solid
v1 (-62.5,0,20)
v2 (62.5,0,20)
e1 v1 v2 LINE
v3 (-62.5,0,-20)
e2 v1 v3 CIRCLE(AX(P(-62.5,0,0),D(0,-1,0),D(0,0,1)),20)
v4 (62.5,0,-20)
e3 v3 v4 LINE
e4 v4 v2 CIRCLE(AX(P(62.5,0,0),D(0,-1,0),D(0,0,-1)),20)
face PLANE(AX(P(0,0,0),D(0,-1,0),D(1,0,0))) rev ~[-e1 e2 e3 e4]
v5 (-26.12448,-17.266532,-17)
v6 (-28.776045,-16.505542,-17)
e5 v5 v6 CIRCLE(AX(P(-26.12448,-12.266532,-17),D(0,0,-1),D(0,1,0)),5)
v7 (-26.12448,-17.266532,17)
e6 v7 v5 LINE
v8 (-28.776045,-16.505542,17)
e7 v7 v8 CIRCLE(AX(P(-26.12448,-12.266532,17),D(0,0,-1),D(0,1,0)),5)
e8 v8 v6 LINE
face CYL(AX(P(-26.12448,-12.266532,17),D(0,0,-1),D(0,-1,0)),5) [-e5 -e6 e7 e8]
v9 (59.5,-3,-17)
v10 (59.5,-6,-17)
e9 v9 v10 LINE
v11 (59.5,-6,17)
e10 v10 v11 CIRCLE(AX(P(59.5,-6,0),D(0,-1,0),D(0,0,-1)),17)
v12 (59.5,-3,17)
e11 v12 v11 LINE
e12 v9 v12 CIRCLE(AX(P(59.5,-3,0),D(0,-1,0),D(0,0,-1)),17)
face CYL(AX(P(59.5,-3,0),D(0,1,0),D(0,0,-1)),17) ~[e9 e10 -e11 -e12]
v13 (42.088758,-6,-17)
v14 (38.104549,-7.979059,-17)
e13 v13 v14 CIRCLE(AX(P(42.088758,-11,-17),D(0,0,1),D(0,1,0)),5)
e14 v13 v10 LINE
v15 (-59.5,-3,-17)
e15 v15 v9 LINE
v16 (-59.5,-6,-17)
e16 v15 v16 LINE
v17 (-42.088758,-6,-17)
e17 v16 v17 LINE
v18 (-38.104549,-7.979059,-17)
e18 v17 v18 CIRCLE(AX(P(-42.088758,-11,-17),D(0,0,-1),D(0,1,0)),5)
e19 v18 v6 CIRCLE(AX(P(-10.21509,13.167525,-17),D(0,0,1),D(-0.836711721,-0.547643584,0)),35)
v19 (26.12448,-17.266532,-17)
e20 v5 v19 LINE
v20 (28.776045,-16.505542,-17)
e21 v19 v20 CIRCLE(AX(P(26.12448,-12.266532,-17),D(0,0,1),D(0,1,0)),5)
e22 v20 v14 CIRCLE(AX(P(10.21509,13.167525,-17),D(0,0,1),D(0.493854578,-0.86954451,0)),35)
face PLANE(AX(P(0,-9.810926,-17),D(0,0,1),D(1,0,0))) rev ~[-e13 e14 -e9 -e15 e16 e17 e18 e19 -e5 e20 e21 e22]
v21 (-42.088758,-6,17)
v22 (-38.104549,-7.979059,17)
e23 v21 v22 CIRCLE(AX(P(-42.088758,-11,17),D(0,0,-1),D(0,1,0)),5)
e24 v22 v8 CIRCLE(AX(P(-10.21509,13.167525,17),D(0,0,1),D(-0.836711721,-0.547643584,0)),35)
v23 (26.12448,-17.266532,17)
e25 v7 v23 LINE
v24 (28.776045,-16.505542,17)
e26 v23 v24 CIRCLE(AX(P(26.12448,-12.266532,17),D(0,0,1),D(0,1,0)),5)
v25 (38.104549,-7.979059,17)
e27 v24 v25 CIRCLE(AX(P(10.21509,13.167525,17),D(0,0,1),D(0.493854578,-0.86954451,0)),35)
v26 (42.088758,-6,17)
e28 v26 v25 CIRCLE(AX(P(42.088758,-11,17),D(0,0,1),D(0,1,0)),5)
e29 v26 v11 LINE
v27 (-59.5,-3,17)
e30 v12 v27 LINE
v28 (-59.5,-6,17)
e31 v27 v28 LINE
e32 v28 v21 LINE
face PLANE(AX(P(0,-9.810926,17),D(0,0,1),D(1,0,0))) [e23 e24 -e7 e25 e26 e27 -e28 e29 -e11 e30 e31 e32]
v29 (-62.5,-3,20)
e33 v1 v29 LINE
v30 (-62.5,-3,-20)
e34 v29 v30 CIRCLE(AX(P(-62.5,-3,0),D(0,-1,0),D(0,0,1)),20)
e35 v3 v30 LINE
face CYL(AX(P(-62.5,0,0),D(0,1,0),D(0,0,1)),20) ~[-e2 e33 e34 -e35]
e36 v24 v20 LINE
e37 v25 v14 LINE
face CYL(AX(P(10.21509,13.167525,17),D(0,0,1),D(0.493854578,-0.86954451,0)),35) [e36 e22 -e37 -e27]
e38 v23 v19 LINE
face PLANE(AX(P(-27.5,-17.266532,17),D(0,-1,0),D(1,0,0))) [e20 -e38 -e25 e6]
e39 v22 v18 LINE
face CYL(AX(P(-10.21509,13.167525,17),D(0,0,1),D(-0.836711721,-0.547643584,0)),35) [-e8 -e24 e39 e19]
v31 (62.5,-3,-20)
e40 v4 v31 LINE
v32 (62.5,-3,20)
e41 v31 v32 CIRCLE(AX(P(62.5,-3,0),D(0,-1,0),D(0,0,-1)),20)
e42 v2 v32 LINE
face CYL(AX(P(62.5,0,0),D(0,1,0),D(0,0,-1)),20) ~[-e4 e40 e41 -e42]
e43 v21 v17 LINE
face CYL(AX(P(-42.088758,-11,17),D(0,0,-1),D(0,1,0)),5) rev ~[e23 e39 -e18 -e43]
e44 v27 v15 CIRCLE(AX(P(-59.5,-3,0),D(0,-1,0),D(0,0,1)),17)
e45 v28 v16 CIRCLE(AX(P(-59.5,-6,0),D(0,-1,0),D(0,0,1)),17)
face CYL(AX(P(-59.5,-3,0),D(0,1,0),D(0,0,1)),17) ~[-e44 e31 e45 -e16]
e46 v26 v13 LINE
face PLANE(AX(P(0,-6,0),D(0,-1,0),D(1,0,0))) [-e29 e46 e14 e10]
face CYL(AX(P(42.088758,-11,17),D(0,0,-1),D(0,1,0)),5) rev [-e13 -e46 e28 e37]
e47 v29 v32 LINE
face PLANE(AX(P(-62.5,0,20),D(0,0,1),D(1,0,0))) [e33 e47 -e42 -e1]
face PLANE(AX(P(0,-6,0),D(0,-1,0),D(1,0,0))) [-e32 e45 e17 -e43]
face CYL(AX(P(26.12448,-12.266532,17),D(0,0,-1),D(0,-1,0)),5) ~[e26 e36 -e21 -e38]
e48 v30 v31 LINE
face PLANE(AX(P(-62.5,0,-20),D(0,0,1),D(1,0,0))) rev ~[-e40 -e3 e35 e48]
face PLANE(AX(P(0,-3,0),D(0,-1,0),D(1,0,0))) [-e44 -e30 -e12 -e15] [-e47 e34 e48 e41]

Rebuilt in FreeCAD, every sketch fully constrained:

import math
import FreeCAD as App
import Part
import Sketcher
from FreeCAD import Vector


def edges_at(feature, points):
    """Names of the edges that pass closest to the given points."""
    edges = feature.Shape.Edges
    near = lambda p: min(range(len(edges)), key=lambda i: edges[i].distToShape(Part.Vertex(*p))[0])
    return sorted({f"Edge{near(p) + 1}" for p in points})

doc = App.newDocument("Part")
body = doc.addObject("PartDesign::Body", "Body")

# Sketch on XZ plane
sketch1 = doc.addObject("Sketcher::SketchObject", "Sketch")
body.addObject(sketch1)
sketch1.AttachmentSupport = (doc.XZ_Plane, [""])
sketch1.MapMode = "FlatFace"
sketch1.addGeometry(Part.LineSegment(Vector(-62, -20, 0), Vector(62, -20, 0)), False)
sketch1.addGeometry(Part.ArcOfCircle(Part.Circle(Vector(62, 0, 0), Vector(0, 0, 1), 20), math.radians(-90), math.radians(90)), False)
sketch1.addGeometry(Part.LineSegment(Vector(62, 20, 0), Vector(-62, 20, 0)), False)
sketch1.addGeometry(Part.ArcOfCircle(Part.Circle(Vector(-62, 0, 0), Vector(0, 0, 1), 20), math.radians(90), math.radians(270)), False)
sketch1.addConstraint(Sketcher.Constraint("Tangent", 0, 2, 1, 1))
sketch1.addConstraint(Sketcher.Constraint("Tangent", 1, 2, 2, 1))
sketch1.addConstraint(Sketcher.Constraint("Tangent", 2, 2, 3, 1))
sketch1.addConstraint(Sketcher.Constraint("Tangent", 3, 2, 0, 1))
sketch1.addConstraint(Sketcher.Constraint("Horizontal", 0))
sketch1.addConstraint(Sketcher.Constraint("Horizontal", 2))
sketch1.addConstraint(Sketcher.Constraint("Symmetric", 1, 3, 3, 3, -1, 1))
sketch1.addConstraint(Sketcher.Constraint("Radius", 1, 20.0))
sketch1.addConstraint(Sketcher.Constraint("DistanceX", 0, 1, 0, 2, 125.0))
pad1 = doc.addObject("PartDesign::Pad", "Pad")
body.addObject(pad1)
pad1.Profile = sketch1
pad1.Length = 3

# Sketch on XZ plane
sketch2 = doc.addObject("Sketcher::SketchObject", "Sketch001")
body.addObject(sketch2)
sketch2.AttachmentSupport = (doc.XZ_Plane, [""])
sketch2.MapMode = "FlatFace"
sketch2.AttachmentOffset = App.Placement(Vector(0, 0, 3), App.Rotation())
sketch2.addGeometry(Part.LineSegment(Vector(-60, -17, 0), Vector(60, -17, 0)), False)
sketch2.addGeometry(Part.ArcOfCircle(Part.Circle(Vector(60, 0, 0), Vector(0, 0, 1), 17), math.radians(-90), math.radians(90)), False)
sketch2.addGeometry(Part.LineSegment(Vector(60, 17, 0), Vector(-60, 17, 0)), False)
sketch2.addGeometry(Part.ArcOfCircle(Part.Circle(Vector(-60, 0, 0), Vector(0, 0, 1), 17), math.radians(90), math.radians(270)), False)
sketch2.addConstraint(Sketcher.Constraint("Tangent", 0, 2, 1, 1))
sketch2.addConstraint(Sketcher.Constraint("Tangent", 1, 2, 2, 1))
sketch2.addConstraint(Sketcher.Constraint("Tangent", 2, 2, 3, 1))
sketch2.addConstraint(Sketcher.Constraint("Tangent", 3, 2, 0, 1))
sketch2.addConstraint(Sketcher.Constraint("Horizontal", 0))
sketch2.addConstraint(Sketcher.Constraint("Horizontal", 2))
sketch2.addConstraint(Sketcher.Constraint("Symmetric", 1, 3, 3, 3, -1, 1))
sketch2.addConstraint(Sketcher.Constraint("Radius", 1, 17.0))
sketch2.addConstraint(Sketcher.Constraint("DistanceX", 0, 1, 0, 2, 119.0))
pad2 = doc.addObject("PartDesign::Pad", "Pad001")
body.addObject(pad2)
pad2.Profile = sketch2
pad2.Length = 3

# Sketch on XY plane
sketch3 = doc.addObject("Sketcher::SketchObject", "Sketch002")
body.addObject(sketch3)
sketch3.AttachmentSupport = (doc.XY_Plane, [""])
sketch3.MapMode = "FlatFace"
sketch3.AttachmentOffset = App.Placement(Vector(0, 0, 17), App.Rotation())
sketch3.addGeometry(Part.LineSegment(Vector(-28, -17, 0), Vector(28, -17, 0)), False)
sketch3.addGeometry(Part.ArcOfCircle(Part.Circle(Vector(10, 13, 0), Vector(0, 0, 1), 35), math.radians(-60), math.radians(-33)), False)
sketch3.addGeometry(Part.LineSegment(Vector(40, -6, 0), Vector(28, -2, 0)), False)
sketch3.addGeometry(Part.LineSegment(Vector(28, -2, 0), Vector(-28, -2, 0)), False)
sketch3.addGeometry(Part.LineSegment(Vector(-28, -2, 0), Vector(-40, -6, 0)), False)
sketch3.addGeometry(Part.ArcOfCircle(Part.Circle(Vector(-10, 13, 0), Vector(0, 0, 1), 35), math.radians(-147), math.radians(-120)), False)
sketch3.addConstraint(Sketcher.Constraint("Coincident", 0, 2, 1, 1))
sketch3.addConstraint(Sketcher.Constraint("Coincident", 1, 2, 2, 1))
sketch3.addConstraint(Sketcher.Constraint("Coincident", 2, 2, 3, 1))
sketch3.addConstraint(Sketcher.Constraint("Coincident", 3, 2, 4, 1))
sketch3.addConstraint(Sketcher.Constraint("Coincident", 4, 2, 5, 1))
sketch3.addConstraint(Sketcher.Constraint("Coincident", 5, 2, 0, 1))
sketch3.addConstraint(Sketcher.Constraint("Horizontal", 0))
sketch3.addConstraint(Sketcher.Constraint("Horizontal", 3))
sketch3.addConstraint(Sketcher.Constraint("Equal", 1, 5))
sketch3.addConstraint(Sketcher.Constraint("Symmetric", 1, 3, 5, 3, -2))
sketch3.addConstraint(Sketcher.Constraint("Horizontal", 1, 2, 4, 2))
sketch3.addConstraint(Sketcher.Constraint("Vertical", 0, 2, 2, 2))
sketch3.addConstraint(Sketcher.Constraint("Vertical", 3, 2, 5, 2))
sketch3.addConstraint(Sketcher.Constraint("Radius", 1, 35.0))
sketch3.addConstraint(Sketcher.Constraint("DistanceX", 0, 1, 0, 2, 55.0))
sketch3.addConstraint(Sketcher.Constraint("DistanceY", 1, 2, -1, 1, 6.0))
sketch3.addConstraint(Sketcher.Constraint("DistanceX", 0, 2, 1, 2, 12.0))
sketch3.addConstraint(Sketcher.Constraint("Distance", 2, 12.541279))
sketch3.addConstraint(Sketcher.Constraint("DistanceX", -1, 1, 1, 3, 10.21509))
pad3 = doc.addObject("PartDesign::Pad", "Pad002")
body.addObject(pad3)
pad3.Profile = sketch3
pad3.Length = 34
pad3.Reversed = True
doc.recompute()

fillet = doc.addObject("PartDesign::Fillet", "Fillet")
body.addObject(fillet)
fillet.Base = (pad3, edges_at(pad3, [
    (-27.5, -17.267, 0),
    (27.5, -17.267, 0),
    (39.5, -6, 0),
    (-39.5, -6, 0),
]))
fillet.Radius = 5

doc.recompute()
